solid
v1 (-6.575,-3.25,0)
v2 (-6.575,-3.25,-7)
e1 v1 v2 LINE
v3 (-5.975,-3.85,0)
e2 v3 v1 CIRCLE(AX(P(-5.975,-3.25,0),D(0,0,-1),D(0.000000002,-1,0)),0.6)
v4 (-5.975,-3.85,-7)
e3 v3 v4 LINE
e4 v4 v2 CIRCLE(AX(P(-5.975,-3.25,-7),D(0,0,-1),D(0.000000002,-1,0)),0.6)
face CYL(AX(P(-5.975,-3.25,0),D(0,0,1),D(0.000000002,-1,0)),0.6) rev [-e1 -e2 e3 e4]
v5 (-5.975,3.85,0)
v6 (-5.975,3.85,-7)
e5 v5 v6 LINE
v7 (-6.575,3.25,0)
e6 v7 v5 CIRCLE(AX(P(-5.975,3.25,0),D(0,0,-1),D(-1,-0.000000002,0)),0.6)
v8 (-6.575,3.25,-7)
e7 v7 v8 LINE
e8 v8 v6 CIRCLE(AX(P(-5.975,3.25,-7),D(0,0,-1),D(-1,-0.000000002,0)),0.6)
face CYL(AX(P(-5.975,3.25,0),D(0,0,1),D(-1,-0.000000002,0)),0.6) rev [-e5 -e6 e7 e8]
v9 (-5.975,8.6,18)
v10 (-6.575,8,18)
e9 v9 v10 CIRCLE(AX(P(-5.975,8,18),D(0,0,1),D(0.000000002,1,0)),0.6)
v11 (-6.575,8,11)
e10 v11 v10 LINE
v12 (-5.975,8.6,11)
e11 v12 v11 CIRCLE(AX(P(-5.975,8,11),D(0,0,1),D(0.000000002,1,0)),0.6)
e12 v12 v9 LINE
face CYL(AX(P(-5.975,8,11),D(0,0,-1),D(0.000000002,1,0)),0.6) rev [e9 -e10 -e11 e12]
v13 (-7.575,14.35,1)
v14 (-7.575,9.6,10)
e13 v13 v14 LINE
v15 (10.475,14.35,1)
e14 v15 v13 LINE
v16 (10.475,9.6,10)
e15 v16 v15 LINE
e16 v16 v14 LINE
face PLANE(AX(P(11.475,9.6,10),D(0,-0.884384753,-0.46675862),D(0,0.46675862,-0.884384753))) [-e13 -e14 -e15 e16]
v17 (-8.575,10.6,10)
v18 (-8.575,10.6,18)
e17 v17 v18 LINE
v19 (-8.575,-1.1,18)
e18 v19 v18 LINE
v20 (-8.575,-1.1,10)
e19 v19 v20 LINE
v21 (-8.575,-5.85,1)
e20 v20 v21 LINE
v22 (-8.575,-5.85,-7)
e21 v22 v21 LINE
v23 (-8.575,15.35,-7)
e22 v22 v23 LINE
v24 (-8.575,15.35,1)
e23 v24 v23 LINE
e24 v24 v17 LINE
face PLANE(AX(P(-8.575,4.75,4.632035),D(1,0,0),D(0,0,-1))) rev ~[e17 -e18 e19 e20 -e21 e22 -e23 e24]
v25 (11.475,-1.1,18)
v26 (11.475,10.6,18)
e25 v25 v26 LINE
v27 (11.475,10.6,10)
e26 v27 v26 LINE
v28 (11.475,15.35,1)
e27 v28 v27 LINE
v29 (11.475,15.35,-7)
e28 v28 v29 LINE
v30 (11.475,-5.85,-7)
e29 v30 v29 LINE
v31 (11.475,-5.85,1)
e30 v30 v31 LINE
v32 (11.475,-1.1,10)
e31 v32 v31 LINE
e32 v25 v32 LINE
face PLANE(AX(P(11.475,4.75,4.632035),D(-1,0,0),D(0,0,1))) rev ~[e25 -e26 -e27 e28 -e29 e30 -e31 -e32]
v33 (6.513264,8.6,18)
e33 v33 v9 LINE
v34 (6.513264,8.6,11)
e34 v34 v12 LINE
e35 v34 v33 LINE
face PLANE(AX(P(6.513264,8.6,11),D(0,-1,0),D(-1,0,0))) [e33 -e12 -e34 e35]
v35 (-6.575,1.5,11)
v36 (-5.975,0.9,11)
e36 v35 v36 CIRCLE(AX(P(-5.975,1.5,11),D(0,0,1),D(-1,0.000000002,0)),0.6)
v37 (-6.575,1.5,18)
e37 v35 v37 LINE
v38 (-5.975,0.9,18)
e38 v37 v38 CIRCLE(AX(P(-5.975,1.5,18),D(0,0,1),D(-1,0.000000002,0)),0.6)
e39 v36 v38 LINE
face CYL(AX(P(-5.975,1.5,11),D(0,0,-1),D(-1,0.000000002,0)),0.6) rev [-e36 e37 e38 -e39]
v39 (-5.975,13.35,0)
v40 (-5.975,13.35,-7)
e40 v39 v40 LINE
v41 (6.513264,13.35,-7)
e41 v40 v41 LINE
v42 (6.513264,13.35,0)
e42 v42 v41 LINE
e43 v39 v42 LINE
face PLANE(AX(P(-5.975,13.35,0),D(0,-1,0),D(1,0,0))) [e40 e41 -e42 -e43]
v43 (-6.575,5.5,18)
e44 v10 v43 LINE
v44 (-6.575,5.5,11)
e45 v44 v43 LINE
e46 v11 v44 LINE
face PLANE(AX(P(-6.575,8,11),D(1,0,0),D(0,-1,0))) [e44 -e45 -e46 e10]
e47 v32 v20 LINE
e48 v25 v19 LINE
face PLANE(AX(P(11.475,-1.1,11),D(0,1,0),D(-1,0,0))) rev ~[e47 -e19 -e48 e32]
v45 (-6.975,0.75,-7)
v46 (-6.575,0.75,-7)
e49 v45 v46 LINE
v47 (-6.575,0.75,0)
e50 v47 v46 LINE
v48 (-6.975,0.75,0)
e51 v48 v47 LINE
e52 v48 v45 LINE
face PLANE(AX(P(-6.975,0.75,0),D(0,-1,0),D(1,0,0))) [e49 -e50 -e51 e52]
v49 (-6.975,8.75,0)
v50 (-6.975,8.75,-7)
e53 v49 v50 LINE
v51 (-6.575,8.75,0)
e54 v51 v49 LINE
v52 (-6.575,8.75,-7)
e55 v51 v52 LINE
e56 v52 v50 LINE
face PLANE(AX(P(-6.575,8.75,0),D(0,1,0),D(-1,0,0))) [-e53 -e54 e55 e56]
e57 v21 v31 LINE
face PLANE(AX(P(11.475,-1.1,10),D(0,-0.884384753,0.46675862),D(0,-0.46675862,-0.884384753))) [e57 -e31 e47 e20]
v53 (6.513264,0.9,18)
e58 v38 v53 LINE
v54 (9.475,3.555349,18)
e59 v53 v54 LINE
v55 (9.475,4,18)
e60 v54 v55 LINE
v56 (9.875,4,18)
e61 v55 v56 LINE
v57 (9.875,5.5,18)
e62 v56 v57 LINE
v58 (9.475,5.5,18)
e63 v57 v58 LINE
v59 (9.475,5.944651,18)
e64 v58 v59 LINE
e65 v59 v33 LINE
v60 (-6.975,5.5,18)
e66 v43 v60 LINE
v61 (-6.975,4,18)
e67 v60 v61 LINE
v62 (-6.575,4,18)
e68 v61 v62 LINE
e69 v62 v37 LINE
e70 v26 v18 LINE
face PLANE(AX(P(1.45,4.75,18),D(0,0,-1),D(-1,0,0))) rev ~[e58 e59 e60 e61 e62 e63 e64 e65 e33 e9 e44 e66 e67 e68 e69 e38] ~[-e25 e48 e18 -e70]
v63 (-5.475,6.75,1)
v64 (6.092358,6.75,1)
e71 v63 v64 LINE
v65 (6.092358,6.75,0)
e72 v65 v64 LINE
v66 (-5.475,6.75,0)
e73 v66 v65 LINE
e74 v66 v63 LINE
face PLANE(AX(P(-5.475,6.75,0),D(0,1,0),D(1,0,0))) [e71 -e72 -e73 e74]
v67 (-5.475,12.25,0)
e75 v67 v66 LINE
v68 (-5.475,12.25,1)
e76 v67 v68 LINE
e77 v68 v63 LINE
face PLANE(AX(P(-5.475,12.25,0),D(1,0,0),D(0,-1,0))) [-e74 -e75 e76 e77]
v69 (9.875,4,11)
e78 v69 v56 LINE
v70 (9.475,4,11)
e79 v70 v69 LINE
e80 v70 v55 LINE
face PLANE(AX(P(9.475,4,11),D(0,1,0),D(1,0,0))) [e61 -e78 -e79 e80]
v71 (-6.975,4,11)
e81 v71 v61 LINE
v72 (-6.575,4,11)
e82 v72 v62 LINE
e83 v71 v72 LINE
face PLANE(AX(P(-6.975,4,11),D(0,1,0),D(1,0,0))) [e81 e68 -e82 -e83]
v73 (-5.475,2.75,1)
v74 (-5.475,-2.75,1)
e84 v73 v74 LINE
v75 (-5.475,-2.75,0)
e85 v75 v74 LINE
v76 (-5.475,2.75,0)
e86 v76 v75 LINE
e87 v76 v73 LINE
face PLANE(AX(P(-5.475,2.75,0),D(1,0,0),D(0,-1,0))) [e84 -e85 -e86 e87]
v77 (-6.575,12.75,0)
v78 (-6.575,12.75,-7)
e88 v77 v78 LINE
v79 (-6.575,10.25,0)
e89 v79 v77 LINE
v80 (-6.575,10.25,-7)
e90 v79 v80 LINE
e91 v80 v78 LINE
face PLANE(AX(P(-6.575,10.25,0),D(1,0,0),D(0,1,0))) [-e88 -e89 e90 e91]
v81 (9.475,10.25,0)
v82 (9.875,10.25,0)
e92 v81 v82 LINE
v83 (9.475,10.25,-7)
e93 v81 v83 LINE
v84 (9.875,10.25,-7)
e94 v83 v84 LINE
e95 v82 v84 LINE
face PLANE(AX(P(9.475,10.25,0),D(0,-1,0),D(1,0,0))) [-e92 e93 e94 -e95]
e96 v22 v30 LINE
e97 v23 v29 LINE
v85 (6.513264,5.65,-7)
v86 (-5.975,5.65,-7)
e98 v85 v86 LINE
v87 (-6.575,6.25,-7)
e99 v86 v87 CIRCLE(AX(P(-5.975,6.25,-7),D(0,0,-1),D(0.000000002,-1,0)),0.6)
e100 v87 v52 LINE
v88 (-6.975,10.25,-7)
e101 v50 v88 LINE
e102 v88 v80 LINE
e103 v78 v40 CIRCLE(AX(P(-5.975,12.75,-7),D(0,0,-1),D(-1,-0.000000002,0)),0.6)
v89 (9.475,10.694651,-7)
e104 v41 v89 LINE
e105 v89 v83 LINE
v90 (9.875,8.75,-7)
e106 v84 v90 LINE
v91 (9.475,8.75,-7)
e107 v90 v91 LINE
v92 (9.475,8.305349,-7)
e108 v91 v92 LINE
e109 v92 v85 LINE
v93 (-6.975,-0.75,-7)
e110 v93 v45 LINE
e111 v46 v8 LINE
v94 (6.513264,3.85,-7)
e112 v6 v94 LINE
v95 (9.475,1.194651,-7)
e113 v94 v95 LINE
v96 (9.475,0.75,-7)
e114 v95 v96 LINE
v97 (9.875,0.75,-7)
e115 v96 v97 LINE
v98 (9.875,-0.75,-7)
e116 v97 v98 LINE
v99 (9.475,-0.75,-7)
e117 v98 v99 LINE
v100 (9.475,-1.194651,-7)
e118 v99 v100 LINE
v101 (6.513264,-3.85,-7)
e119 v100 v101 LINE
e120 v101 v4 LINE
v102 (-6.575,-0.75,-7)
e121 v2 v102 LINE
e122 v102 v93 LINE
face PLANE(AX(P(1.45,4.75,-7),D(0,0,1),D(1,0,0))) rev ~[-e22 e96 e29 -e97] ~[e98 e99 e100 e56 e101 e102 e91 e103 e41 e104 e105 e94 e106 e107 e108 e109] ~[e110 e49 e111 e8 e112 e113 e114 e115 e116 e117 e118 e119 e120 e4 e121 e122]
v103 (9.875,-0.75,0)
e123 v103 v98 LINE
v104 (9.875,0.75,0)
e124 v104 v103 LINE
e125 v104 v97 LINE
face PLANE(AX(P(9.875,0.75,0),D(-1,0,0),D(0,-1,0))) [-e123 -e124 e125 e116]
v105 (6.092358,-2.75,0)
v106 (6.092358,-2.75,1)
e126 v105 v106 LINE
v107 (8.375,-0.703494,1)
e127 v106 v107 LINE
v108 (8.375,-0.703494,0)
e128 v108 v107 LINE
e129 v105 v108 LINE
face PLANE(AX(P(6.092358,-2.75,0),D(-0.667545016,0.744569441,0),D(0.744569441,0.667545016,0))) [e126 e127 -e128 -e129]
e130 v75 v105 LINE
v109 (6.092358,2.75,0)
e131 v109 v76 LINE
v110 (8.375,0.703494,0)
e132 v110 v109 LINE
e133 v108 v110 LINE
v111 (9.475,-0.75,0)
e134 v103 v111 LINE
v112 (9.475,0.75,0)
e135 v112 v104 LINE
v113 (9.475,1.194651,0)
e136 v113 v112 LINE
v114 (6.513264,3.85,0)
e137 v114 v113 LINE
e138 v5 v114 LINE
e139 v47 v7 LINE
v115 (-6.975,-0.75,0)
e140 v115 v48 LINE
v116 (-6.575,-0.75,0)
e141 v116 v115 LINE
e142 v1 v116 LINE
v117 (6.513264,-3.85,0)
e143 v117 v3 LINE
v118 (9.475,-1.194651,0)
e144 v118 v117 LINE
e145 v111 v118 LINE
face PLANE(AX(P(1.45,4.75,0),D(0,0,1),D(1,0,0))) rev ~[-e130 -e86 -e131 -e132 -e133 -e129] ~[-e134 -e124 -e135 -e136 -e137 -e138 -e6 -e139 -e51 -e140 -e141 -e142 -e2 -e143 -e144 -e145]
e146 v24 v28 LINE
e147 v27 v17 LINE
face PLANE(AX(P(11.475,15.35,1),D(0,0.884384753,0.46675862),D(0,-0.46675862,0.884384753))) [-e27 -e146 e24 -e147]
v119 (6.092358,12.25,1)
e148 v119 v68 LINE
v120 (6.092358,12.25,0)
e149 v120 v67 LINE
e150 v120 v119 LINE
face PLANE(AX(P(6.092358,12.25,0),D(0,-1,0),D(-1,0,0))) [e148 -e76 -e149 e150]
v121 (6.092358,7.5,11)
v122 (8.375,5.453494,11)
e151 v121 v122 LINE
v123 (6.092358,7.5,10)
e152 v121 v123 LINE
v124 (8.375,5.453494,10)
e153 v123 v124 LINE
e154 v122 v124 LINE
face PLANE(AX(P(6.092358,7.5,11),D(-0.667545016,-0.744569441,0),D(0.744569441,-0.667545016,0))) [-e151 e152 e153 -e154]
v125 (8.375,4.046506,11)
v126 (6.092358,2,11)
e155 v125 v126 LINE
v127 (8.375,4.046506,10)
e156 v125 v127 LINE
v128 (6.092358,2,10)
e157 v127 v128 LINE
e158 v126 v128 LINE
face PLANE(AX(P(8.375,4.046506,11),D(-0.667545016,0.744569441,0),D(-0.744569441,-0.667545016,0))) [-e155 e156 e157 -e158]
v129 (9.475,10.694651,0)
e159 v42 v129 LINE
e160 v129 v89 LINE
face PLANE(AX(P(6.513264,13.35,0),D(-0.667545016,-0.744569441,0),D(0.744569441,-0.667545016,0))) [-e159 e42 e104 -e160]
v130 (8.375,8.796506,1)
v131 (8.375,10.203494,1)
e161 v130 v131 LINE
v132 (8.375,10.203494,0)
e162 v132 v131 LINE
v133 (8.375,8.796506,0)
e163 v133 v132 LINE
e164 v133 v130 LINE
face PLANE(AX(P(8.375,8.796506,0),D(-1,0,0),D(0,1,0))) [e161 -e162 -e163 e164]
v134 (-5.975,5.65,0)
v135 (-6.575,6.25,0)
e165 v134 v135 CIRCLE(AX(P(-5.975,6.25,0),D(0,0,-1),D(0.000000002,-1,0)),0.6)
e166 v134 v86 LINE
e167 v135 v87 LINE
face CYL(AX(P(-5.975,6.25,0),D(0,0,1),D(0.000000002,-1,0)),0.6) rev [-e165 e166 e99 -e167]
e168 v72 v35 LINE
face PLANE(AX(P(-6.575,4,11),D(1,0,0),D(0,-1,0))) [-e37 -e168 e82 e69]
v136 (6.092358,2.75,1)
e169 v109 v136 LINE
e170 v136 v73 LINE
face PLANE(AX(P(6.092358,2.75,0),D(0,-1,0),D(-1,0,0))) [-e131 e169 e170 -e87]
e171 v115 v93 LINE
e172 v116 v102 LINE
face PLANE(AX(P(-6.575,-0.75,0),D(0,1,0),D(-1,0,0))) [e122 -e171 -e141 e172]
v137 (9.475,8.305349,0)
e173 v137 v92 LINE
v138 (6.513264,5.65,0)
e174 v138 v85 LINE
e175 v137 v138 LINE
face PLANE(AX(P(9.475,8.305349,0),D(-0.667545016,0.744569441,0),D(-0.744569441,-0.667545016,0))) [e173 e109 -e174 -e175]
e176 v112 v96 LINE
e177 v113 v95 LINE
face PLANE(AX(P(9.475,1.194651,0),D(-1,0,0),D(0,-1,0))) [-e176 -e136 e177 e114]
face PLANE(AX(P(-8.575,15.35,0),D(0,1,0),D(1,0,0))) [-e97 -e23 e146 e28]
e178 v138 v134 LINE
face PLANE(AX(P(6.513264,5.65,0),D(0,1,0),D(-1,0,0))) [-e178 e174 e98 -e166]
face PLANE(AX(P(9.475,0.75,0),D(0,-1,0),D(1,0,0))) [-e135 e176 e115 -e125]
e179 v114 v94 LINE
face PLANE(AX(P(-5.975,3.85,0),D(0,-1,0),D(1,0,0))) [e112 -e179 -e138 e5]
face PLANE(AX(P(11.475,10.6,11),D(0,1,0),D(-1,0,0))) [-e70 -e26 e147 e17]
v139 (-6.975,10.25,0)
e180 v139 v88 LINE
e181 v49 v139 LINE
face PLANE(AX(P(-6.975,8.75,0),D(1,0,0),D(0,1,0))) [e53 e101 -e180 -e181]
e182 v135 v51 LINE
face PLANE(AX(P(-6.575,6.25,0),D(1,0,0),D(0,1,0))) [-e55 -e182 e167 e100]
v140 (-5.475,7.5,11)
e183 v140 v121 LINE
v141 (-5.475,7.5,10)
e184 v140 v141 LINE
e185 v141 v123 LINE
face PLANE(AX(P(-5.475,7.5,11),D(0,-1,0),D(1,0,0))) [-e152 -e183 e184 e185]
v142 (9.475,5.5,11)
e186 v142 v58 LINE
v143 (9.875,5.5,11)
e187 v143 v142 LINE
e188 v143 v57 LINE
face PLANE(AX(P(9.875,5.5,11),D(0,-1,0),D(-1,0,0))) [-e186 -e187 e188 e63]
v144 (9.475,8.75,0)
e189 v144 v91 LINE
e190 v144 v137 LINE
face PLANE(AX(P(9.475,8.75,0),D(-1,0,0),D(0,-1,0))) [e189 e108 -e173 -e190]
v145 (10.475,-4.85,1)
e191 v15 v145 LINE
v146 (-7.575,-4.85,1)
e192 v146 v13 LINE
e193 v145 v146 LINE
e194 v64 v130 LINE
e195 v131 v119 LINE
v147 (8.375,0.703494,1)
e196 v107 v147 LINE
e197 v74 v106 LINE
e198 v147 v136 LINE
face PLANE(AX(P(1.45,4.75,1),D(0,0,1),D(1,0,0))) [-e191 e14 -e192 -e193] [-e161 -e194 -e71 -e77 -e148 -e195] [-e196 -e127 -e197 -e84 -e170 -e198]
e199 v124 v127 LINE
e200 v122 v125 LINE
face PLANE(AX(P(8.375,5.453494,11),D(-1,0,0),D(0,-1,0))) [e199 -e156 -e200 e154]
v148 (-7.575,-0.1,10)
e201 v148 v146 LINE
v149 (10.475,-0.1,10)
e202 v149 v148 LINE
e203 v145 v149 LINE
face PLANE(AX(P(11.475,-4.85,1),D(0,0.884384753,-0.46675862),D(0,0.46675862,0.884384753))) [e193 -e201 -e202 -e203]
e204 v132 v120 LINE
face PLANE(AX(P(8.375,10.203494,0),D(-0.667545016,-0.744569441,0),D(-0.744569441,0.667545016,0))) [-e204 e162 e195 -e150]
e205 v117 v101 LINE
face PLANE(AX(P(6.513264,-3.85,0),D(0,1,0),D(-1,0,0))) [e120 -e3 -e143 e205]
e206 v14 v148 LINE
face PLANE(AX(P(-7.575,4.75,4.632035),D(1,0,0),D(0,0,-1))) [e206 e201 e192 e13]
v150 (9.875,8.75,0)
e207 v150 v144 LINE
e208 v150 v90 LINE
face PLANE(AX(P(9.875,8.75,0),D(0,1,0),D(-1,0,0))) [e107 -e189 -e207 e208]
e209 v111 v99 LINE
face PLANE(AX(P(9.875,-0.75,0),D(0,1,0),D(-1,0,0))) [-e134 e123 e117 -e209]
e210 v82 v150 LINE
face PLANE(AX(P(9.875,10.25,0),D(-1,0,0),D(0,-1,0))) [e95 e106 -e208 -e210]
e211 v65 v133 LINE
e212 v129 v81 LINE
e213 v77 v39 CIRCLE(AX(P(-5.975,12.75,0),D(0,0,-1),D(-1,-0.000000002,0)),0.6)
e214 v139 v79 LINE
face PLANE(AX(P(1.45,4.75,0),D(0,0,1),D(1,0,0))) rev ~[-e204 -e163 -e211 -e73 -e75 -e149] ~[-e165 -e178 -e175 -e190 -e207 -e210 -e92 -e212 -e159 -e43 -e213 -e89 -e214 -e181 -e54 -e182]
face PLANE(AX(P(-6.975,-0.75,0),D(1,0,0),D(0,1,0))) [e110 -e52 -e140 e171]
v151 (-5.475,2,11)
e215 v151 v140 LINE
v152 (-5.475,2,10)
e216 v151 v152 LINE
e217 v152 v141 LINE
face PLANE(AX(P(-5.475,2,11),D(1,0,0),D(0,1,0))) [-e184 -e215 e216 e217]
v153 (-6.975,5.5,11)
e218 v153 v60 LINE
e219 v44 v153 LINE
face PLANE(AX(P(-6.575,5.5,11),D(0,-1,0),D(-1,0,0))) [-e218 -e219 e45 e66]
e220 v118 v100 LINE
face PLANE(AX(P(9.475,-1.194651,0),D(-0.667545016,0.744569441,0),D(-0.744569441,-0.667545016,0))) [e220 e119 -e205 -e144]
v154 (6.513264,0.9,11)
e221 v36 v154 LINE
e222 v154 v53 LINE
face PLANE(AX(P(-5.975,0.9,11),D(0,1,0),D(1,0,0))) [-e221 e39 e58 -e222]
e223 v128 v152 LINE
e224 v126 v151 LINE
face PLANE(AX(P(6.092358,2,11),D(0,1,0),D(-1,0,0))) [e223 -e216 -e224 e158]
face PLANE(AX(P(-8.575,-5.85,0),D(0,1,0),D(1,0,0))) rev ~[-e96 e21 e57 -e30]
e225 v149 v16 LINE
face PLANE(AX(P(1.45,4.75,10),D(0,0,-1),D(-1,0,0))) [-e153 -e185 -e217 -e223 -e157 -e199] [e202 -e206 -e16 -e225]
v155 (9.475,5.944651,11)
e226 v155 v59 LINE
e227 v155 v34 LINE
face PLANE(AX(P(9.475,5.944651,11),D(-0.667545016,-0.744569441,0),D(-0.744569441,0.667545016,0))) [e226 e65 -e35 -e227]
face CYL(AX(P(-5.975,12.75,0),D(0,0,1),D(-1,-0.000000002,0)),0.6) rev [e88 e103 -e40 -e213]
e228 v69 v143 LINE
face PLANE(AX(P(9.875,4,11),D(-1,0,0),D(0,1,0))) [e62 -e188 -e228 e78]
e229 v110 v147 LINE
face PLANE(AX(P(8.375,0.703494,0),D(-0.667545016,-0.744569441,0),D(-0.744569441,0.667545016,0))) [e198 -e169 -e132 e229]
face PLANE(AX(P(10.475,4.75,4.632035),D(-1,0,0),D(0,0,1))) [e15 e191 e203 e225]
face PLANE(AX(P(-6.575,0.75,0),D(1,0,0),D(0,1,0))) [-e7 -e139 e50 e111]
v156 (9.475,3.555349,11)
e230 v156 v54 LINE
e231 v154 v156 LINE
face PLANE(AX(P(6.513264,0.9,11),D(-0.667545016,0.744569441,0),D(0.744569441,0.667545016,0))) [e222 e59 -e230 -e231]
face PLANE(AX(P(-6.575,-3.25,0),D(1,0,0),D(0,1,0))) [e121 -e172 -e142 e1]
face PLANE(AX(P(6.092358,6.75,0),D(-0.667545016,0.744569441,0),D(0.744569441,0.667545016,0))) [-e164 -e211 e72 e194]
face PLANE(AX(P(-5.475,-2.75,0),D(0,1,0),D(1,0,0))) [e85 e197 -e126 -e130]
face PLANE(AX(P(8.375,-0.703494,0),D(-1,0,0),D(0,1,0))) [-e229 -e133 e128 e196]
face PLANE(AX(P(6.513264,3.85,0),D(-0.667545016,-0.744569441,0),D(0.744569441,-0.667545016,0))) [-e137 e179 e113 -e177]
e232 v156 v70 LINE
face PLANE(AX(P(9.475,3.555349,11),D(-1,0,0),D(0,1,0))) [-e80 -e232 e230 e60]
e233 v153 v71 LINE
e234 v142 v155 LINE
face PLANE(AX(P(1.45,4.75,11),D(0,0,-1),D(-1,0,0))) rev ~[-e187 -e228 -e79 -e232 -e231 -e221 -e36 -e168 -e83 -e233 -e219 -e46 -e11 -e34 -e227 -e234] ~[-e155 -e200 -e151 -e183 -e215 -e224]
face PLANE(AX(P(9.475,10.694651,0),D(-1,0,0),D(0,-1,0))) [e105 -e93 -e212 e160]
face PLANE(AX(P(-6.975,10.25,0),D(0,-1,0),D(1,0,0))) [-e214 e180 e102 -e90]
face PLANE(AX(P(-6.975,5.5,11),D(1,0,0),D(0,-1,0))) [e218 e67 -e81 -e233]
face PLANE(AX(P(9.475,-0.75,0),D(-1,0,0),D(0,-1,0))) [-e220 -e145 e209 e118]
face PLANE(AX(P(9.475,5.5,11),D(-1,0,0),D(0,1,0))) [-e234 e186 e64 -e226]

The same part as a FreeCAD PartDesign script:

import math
import FreeCAD as App
import Part
import Sketcher
Q = App.Units.Quantity


def add_polygon(sketch, points):
    """Adds a closed chain of lines whose ends are joined by coincident constraints."""
    first, n = sketch.GeometryCount, len(points)
    for a, b in zip(points, points[1:] + points[:1]):
        sketch.addGeometry(Part.LineSegment(App.Vector(*a, 0), App.Vector(*b, 0)), False)
    for i in range(n):
        sketch.addConstraint(Sketcher.Constraint("Coincident", first + i, 2, first + (i + 1) % n, 1))

doc = App.newDocument("Part")
body = doc.addObject("PartDesign::Body", "Body")

# Sketch on XY plane
sketch1 = doc.addObject("Sketcher::SketchObject", "Sketch")
body.addObject(sketch1)
sketch1.AttachmentSupport = (doc.XY_Plane, [""])
sketch1.MapMode = "FlatFace"
add_polygon(sketch1, [(-8.57, 15.35), (-8.57, -5.85), (11.47, -5.85), (11.47, 15.35)])  # lines 0-3
sketch1.addGeometry(Part.ArcOfCircle(Part.Circle(App.Vector(-5.98, 3.25, 0), App.Vector(0, 0, 1), 0.6), math.radians(90), math.radians(180)), False)  # 4
sketch1.addGeometry(Part.LineSegment(App.Vector(-5.97, 3.85, 0), App.Vector(6.51, 3.85, 0)), False)  # 5
sketch1.addGeometry(Part.LineSegment(App.Vector(6.51, 3.85, 0), App.Vector(9.47, 1.19, 0)), False)  # 6
sketch1.addGeometry(Part.LineSegment(App.Vector(9.47, 1.19, 0), App.Vector(9.47, 0.75, 0)), False)  # 7
sketch1.addGeometry(Part.LineSegment(App.Vector(9.47, 0.75, 0), App.Vector(9.88, 0.75, 0)), False)  # 8
sketch1.addGeometry(Part.LineSegment(App.Vector(9.88, 0.75, 0), App.Vector(9.88, -0.75, 0)), False)  # 9
sketch1.addGeometry(Part.LineSegment(App.Vector(9.88, -0.75, 0), App.Vector(9.47, -0.75, 0)), False)  # 10
sketch1.addGeometry(Part.LineSegment(App.Vector(9.47, -0.75, 0), App.Vector(9.47, -1.19, 0)), False)  # 11
sketch1.addGeometry(Part.LineSegment(App.Vector(9.47, -1.19, 0), App.Vector(6.51, -3.85, 0)), False)  # 12
sketch1.addGeometry(Part.LineSegment(App.Vector(6.51, -3.85, 0), App.Vector(-5.97, -3.85, 0)), False)  # 13
sketch1.addGeometry(Part.ArcOfCircle(Part.Circle(App.Vector(-5.98, -3.25, 0), App.Vector(0, 0, 1), 0.6), math.radians(180), math.radians(270)), False)  # 14
sketch1.addGeometry(Part.LineSegment(App.Vector(-6.58, -3.25, 0), App.Vector(-6.58, -0.75, 0)), False)  # 15
sketch1.addGeometry(Part.LineSegment(App.Vector(-6.58, -0.75, 0), App.Vector(-6.97, -0.75, 0)), False)  # 16
sketch1.addGeometry(Part.LineSegment(App.Vector(-6.97, -0.75, 0), App.Vector(-6.97, 0.75, 0)), False)  # 17
sketch1.addGeometry(Part.LineSegment(App.Vector(-6.97, 0.75, 0), App.Vector(-6.58, 0.75, 0)), False)  # 18
sketch1.addGeometry(Part.LineSegment(App.Vector(-6.58, 0.75, 0), App.Vector(-6.58, 3.25, 0)), False)  # 19
sketch1.addGeometry(Part.ArcOfCircle(Part.Circle(App.Vector(-5.98, 12.75, 0), App.Vector(0, 0, 1), 0.6), math.radians(90), math.radians(180)), False)  # 20
sketch1.addGeometry(Part.LineSegment(App.Vector(-5.97, 13.35, 0), App.Vector(6.51, 13.35, 0)), False)  # 21
sketch1.addGeometry(Part.LineSegment(App.Vector(6.51, 13.35, 0), App.Vector(9.47, 10.69, 0)), False)  # 22
sketch1.addGeometry(Part.LineSegment(App.Vector(9.47, 10.69, 0), App.Vector(9.47, 10.25, 0)), False)  # 23
sketch1.addGeometry(Part.LineSegment(App.Vector(9.47, 10.25, 0), App.Vector(9.88, 10.25, 0)), False)  # 24
sketch1.addGeometry(Part.LineSegment(App.Vector(9.88, 10.25, 0), App.Vector(9.88, 8.75, 0)), False)  # 25
sketch1.addGeometry(Part.LineSegment(App.Vector(9.88, 8.75, 0), App.Vector(9.47, 8.75, 0)), False)  # 26
sketch1.addGeometry(Part.LineSegment(App.Vector(9.47, 8.75, 0), App.Vector(9.47, 8.31, 0)), False)  # 27
sketch1.addGeometry(Part.LineSegment(App.Vector(9.47, 8.31, 0), App.Vector(6.51, 5.65, 0)), False)  # 28
sketch1.addGeometry(Part.LineSegment(App.Vector(6.51, 5.65, 0), App.Vector(-5.97, 5.65, 0)), False)  # 29
sketch1.addGeometry(Part.ArcOfCircle(Part.Circle(App.Vector(-5.98, 6.25, 0), App.Vector(0, 0, 1), 0.6), math.radians(180), math.radians(270)), False)  # 30
sketch1.addGeometry(Part.LineSegment(App.Vector(-6.58, 6.25, 0), App.Vector(-6.58, 8.75, 0)), False)  # 31
sketch1.addGeometry(Part.LineSegment(App.Vector(-6.58, 8.75, 0), App.Vector(-6.97, 8.75, 0)), False)  # 32
sketch1.addGeometry(Part.LineSegment(App.Vector(-6.97, 8.75, 0), App.Vector(-6.97, 10.25, 0)), False)  # 33
sketch1.addGeometry(Part.LineSegment(App.Vector(-6.97, 10.25, 0), App.Vector(-6.58, 10.25, 0)), False)  # 34
sketch1.addGeometry(Part.LineSegment(App.Vector(-6.58, 10.25, 0), App.Vector(-6.58, 12.75, 0)), False)  # 35
sketch1.addConstraint([
    Sketcher.Constraint("Tangent", 4, 1, 5, 1),
    Sketcher.Constraint("Coincident", 5, 2, 6, 1),
    Sketcher.Constraint("Coincident", 6, 2, 7, 1),
    Sketcher.Constraint("Coincident", 7, 2, 8, 1),
    Sketcher.Constraint("Coincident", 8, 2, 9, 1),
    Sketcher.Constraint("Coincident", 9, 2, 10, 1),
    Sketcher.Constraint("Coincident", 10, 2, 11, 1),
    Sketcher.Constraint("Coincident", 11, 2, 12, 1),
    Sketcher.Constraint("Coincident", 12, 2, 13, 1),
    Sketcher.Constraint("Tangent", 13, 2, 14, 2),
    Sketcher.Constraint("Tangent", 14, 1, 15, 1),
    Sketcher.Constraint("Coincident", 15, 2, 16, 1),
    Sketcher.Constraint("Coincident", 16, 2, 17, 1),
    Sketcher.Constraint("Coincident", 17, 2, 18, 1),
    Sketcher.Constraint("Coincident", 18, 2, 19, 1),
    Sketcher.Constraint("Tangent", 19, 2, 4, 2),
    Sketcher.Constraint("Tangent", 20, 1, 21, 1),
    Sketcher.Constraint("Coincident", 21, 2, 22, 1),
    Sketcher.Constraint("Coincident", 22, 2, 23, 1),
    Sketcher.Constraint("Coincident", 23, 2, 24, 1),
    Sketcher.Constraint("Coincident", 24, 2, 25, 1),
    Sketcher.Constraint("Coincident", 25, 2, 26, 1),
    Sketcher.Constraint("Coincident", 26, 2, 27, 1),
    Sketcher.Constraint("Coincident", 27, 2, 28, 1),
    Sketcher.Constraint("Coincident", 28, 2, 29, 1),
    Sketcher.Constraint("Tangent", 29, 2, 30, 2),
    Sketcher.Constraint("Tangent", 30, 1, 31, 1),
    Sketcher.Constraint("Coincident", 31, 2, 32, 1),
    Sketcher.Constraint("Coincident", 32, 2, 33, 1),
    Sketcher.Constraint("Coincident", 33, 2, 34, 1),
    Sketcher.Constraint("Coincident", 34, 2, 35, 1),
    Sketcher.Constraint("Tangent", 35, 2, 20, 2),
    Sketcher.Constraint("Vertical", 0),
    Sketcher.Constraint("Horizontal", 1),
    Sketcher.Constraint("Vertical", 2),
    Sketcher.Constraint("Horizontal", 3),
    Sketcher.Constraint("Horizontal", 5),
    Sketcher.Constraint("Vertical", 7),
    Sketcher.Constraint("Horizontal", 8),
    Sketcher.Constraint("Vertical", 9),
    Sketcher.Constraint("Horizontal", 10),
    Sketcher.Constraint("Vertical", 11),
    Sketcher.Constraint("Horizontal", 13),
    Sketcher.Constraint("Vertical", 15),
    Sketcher.Constraint("Horizontal", 16),
    Sketcher.Constraint("Vertical", 17),
    Sketcher.Constraint("Horizontal", 18),
    Sketcher.Constraint("Vertical", 19),
    Sketcher.Constraint("Horizontal", 21),
    Sketcher.Constraint("Vertical", 23),
    Sketcher.Constraint("Horizontal", 24),
    Sketcher.Constraint("Vertical", 25),
    Sketcher.Constraint("Horizontal", 26),
    Sketcher.Constraint("Vertical", 27),
    Sketcher.Constraint("Horizontal", 29),
    Sketcher.Constraint("Vertical", 31),
    Sketcher.Constraint("Horizontal", 32),
    Sketcher.Constraint("Vertical", 33),
    Sketcher.Constraint("Horizontal", 34),
    Sketcher.Constraint("Vertical", 35),
    Sketcher.Constraint("Equal", 4, 14),
    Sketcher.Constraint("Equal", 14, 20),
    Sketcher.Constraint("Equal", 20, 30),
    Sketcher.Constraint("Symmetric", 4, 3, 14, 3, -1),
    Sketcher.Constraint("Symmetric", 7, 2, 10, 2, -1),
    Sketcher.Constraint("Parallel", 6, 22),
    Sketcher.Constraint("Parallel", 12, 28),
    Sketcher.Constraint("Horizontal", 10, 2, 15, 2),
    Sketcher.Constraint("Horizontal", 8, 2, 17, 2),
    Sketcher.Constraint("Horizontal", 26, 2, 31, 2),
    Sketcher.Constraint("Horizontal", 24, 2, 33, 2),
    Sketcher.Constraint("Vertical", 14, 3, 20, 3),
    Sketcher.Constraint("Vertical", 20, 3, 30, 3),
    Sketcher.Constraint("Vertical", 5, 2, 12, 2),
    Sketcher.Constraint("Vertical", 12, 2, 21, 2),
    Sketcher.Constraint("Vertical", 11, 2, 22, 2),
    Sketcher.Constraint("Vertical", 9, 2, 24, 2),
    Sketcher.Constraint("Vertical", 23, 2, 26, 2),
    Sketcher.Constraint("Vertical", 21, 2, 28, 2),
    Sketcher.Constraint("Vertical", 17, 2, 32, 2),
    Sketcher.Constraint("Equal", 10, 16),
    Sketcher.Constraint("Equal", 7, 11),
    Sketcher.Constraint("Equal", 11, 23),
    Sketcher.Constraint("Equal", 17, 25),
    Sketcher.Constraint("Equal", 23, 27),
    Sketcher.Constraint("Radius", 4, Q("0.6 mm")),
    Sketcher.Constraint("DistanceX", 8, 1, 8, 2, Q("0.4 mm")),
    Sketcher.Constraint("DistanceY", 0, 2, 0, 1, Q("21.2 mm")),
    Sketcher.Constraint("DistanceY", 9, 2, 9, 1, Q("1.5 mm")),
    Sketcher.Constraint("DistanceY", 15, 1, 15, 2, Q("2.5 mm")),
    Sketcher.Constraint("DistanceY", 14, 3, 20, 3, Q("16 mm")),
    Sketcher.Constraint("DistanceX", 6, 2, 1, 2, Q("2 mm")),
    Sketcher.Constraint("DistanceY", 1, 2, 12, 2, Q("2 mm")),
    Sketcher.Constraint("DistanceX", 0, 2, 14, 1, Q("2 mm")),
    Sketcher.Constraint("DistanceX", 1, 1, 1, 2, Q("20.05 mm")),
    Sketcher.Constraint("DistanceX", 4, 3, -1, 1, Q("5.975 mm")),
    Sketcher.Constraint("DistanceY", 7, 2, 7, 1, Q("0.444651 mm")),
    Sketcher.Constraint("DistanceX", 5, 1, 5, 2, Q("12.488264 mm")),
])
pad1 = doc.addObject("PartDesign::Pad", "Pad")
body.addObject(pad1)
pad1.Profile = sketch1
pad1.Length = 7
pad1.Reversed = True

# Sketch on XY plane
sketch2 = doc.addObject("Sketcher::SketchObject", "Sketch001")
body.addObject(sketch2)
sketch2.AttachmentSupport = (doc.XY_Plane, [""])
sketch2.MapMode = "FlatFace"
add_polygon(sketch2, [(-8.6, 15.3), (-8.6, -5.8), (11.5, -5.8), (11.5, 15.3)])  # lines 0-3
add_polygon(sketch2, [(-5.5, 2.8), (6.1, 2.8), (8.4, 0.7), (8.4, -0.7), (6.1, -2.8), (-5.5, -2.8)])  # lines 4-9
add_polygon(sketch2, [(-5.5, 12.2), (6.1, 12.2), (8.4, 10.2), (8.4, 8.8), (6.1, 6.8), (-5.5, 6.8)])  # lines 10-15
sketch2.addConstraint([
    Sketcher.Constraint("Vertical", 0),
    Sketcher.Constraint("Horizontal", 1),
    Sketcher.Constraint("Vertical", 2),
    Sketcher.Constraint("Horizontal", 3),
    Sketcher.Constraint("Horizontal", 4),
    Sketcher.Constraint("Vertical", 6),
    Sketcher.Constraint("Horizontal", 8),
    Sketcher.Constraint("Vertical", 9),
    Sketcher.Constraint("Horizontal", 10),
    Sketcher.Constraint("Vertical", 12),
    Sketcher.Constraint("Horizontal", 14),
    Sketcher.Constraint("Vertical", 15),
    Sketcher.Constraint("Symmetric", 4, 2, 7, 2, -1),
    Sketcher.Constraint("Parallel", 5, 11),
    Sketcher.Constraint("Parallel", 7, 13),
    Sketcher.Constraint("Vertical", 7, 2, 10, 2),
    Sketcher.Constraint("Vertical", 6, 2, 11, 2),
    Sketcher.Constraint("Vertical", 10, 2, 13, 2),
    Sketcher.Constraint("Vertical", 9, 2, 14, 2),
    Sketcher.Constraint("Equal", 6, 12),
    Sketcher.Constraint("Equal", 5, 7),
    Sketcher.Constraint("DistanceY", 0, 2, 0, 1, Q("21.2 mm")),
    Sketcher.Constraint("DistanceY", 9, 1, 9, 2, Q("5.5 mm")),
    Sketcher.Constraint("DistanceY", 4, 2, 13, 2, Q("4 mm")),
    Sketcher.Constraint("DistanceX", 1, 1, 1, 2, Q("20.05 mm")),
    Sketcher.Constraint("DistanceY", 1, 2, 4, 2, Q("8.6 mm")),
    Sketcher.Constraint("DistanceX", 5, 2, 1, 2, Q("3.1 mm")),
    Sketcher.Constraint("DistanceX", 0, 2, 8, 2, Q("3.1 mm")),
    Sketcher.Constraint("DistanceX", 0, 2, -1, 1, Q("8.575 mm")),
    Sketcher.Constraint("DistanceX", 4, 1, 4, 2, Q("11.567358 mm")),
    Sketcher.Constraint("Distance", 5, Q("3.06572 mm")),
])
pad2 = doc.addObject("PartDesign::Pad", "Pad001")
body.addObject(pad2)
pad2.Profile = sketch2
pad2.Length = 1
body2 = doc.addObject("PartDesign::Body", "Body001")

# Sketch on XY plane
sketch3 = doc.addObject("Sketcher::SketchObject", "Sketch002")
body2.addObject(sketch3)
sketch3.AttachmentSupport = (doc.getObject("XY_Plane001"), [""])
sketch3.MapMode = "FlatFace"
sketch3.AttachmentOffset = App.Placement(App.Vector(0, 0, 11), App.Rotation())
add_polygon(sketch3, [(11.47, 10.6), (11.47, -1.1), (-8.57, -1.1), (-8.57, 10.6)])  # lines 0-3
sketch3.addGeometry(Part.LineSegment(App.Vector(-6.97, 5.5, 0), App.Vector(-6.97, 4, 0)), False)  # 4
sketch3.addGeometry(Part.LineSegment(App.Vector(-6.97, 4, 0), App.Vector(-6.58, 4, 0)), False)  # 5
sketch3.addGeometry(Part.LineSegment(App.Vector(-6.58, 4, 0), App.Vector(-6.58, 1.5, 0)), False)  # 6
sketch3.addGeometry(Part.ArcOfCircle(Part.Circle(App.Vector(-5.98, 1.5, 0), App.Vector(0, 0, 1), 0.6), math.radians(180), math.radians(270)), False)  # 7
sketch3.addGeometry(Part.LineSegment(App.Vector(-5.97, 0.9, 0), App.Vector(6.51, 0.9, 0)), False)  # 8
sketch3.addGeometry(Part.LineSegment(App.Vector(6.51, 0.9, 0), App.Vector(9.47, 3.56, 0)), False)  # 9
sketch3.addGeometry(Part.LineSegment(App.Vector(9.47, 3.56, 0), App.Vector(9.47, 4, 0)), False)  # 10
sketch3.addGeometry(Part.LineSegment(App.Vector(9.47, 4, 0), App.Vector(9.88, 4, 0)), False)  # 11
sketch3.addGeometry(Part.LineSegment(App.Vector(9.88, 4, 0), App.Vector(9.88, 5.5, 0)), False)  # 12
sketch3.addGeometry(Part.LineSegment(App.Vector(9.88, 5.5, 0), App.Vector(9.47, 5.5, 0)), False)  # 13
sketch3.addGeometry(Part.LineSegment(App.Vector(9.47, 5.5, 0), App.Vector(9.47, 5.94, 0)), False)  # 14
sketch3.addGeometry(Part.LineSegment(App.Vector(9.47, 5.94, 0), App.Vector(6.51, 8.6, 0)), False)  # 15
sketch3.addGeometry(Part.LineSegment(App.Vector(6.51, 8.6, 0), App.Vector(-5.97, 8.6, 0)), False)  # 16
sketch3.addGeometry(Part.ArcOfCircle(Part.Circle(App.Vector(-5.98, 8, 0), App.Vector(0, 0, 1), 0.6), math.radians(90), math.radians(180)), False)  # 17
sketch3.addGeometry(Part.LineSegment(App.Vector(-6.58, 8, 0), App.Vector(-6.58, 5.5, 0)), False)  # 18
sketch3.addGeometry(Part.LineSegment(App.Vector(-6.58, 5.5, 0), App.Vector(-6.97, 5.5, 0)), False)  # 19
sketch3.addConstraint([
    Sketcher.Constraint("Coincident", 4, 2, 5, 1),
    Sketcher.Constraint("Coincident", 5, 2, 6, 1),
    Sketcher.Constraint("Tangent", 6, 2, 7, 1),
    Sketcher.Constraint("Tangent", 7, 2, 8, 1),
    Sketcher.Constraint("Coincident", 8, 2, 9, 1),
    Sketcher.Constraint("Coincident", 9, 2, 10, 1),
    Sketcher.Constraint("Coincident", 10, 2, 11, 1),
    Sketcher.Constraint("Coincident", 11, 2, 12, 1),
    Sketcher.Constraint("Coincident", 12, 2, 13, 1),
    Sketcher.Constraint("Coincident", 13, 2, 14, 1),
    Sketcher.Constraint("Coincident", 14, 2, 15, 1),
    Sketcher.Constraint("Coincident", 15, 2, 16, 1),
    Sketcher.Constraint("Tangent", 16, 2, 17, 1),
    Sketcher.Constraint("Tangent", 17, 2, 18, 1),
    Sketcher.Constraint("Coincident", 18, 2, 19, 1),
    Sketcher.Constraint("Coincident", 19, 2, 4, 1),
    Sketcher.Constraint("Vertical", 0),
    Sketcher.Constraint("Horizontal", 1),
    Sketcher.Constraint("Vertical", 2),
    Sketcher.Constraint("Horizontal", 3),
    Sketcher.Constraint("Vertical", 4),
    Sketcher.Constraint("Horizontal", 5),
    Sketcher.Constraint("Vertical", 6),
    Sketcher.Constraint("Horizontal", 8),
    Sketcher.Constraint("Vertical", 10),
    Sketcher.Constraint("Horizontal", 11),
    Sketcher.Constraint("Vertical", 12),
    Sketcher.Constraint("Horizontal", 13),
    Sketcher.Constraint("Vertical", 14),
    Sketcher.Constraint("Horizontal", 16),
    Sketcher.Constraint("Vertical", 18),
    Sketcher.Constraint("Horizontal", 19),
    Sketcher.Constraint("Equal", 7, 17),
    Sketcher.Constraint("Horizontal", 5, 2, 10, 2),
    Sketcher.Constraint("Horizontal", 13, 2, 18, 2),
    Sketcher.Constraint("Vertical", 7, 3, 17, 3),
    Sketcher.Constraint("Vertical", 10, 2, 13, 2),
    Sketcher.Constraint("Vertical", 8, 2, 15, 2),
    Sketcher.Constraint("Equal", 5, 11),
    Sketcher.Constraint("Equal", 10, 14),
    Sketcher.Constraint("Equal", 6, 18),
    Sketcher.Constraint("Radius", 7, Q("0.6 mm")),
    Sketcher.Constraint("DistanceX", 5, 1, 5, 2, Q("0.4 mm")),
    Sketcher.Constraint("DistanceY", 0, 2, 0, 1, Q("11.7 mm")),
    Sketcher.Constraint("DistanceY", 4, 2, 4, 1, Q("1.5 mm")),
    Sketcher.Constraint("DistanceY", 6, 2, 6, 1, Q("2.5 mm")),
    Sketcher.Constraint("DistanceY", -1, 1, 17, 3, Q("8 mm")),
    Sketcher.Constraint("DistanceX", 1, 2, 5, 2, Q("2 mm")),
    Sketcher.Constraint("DistanceY", 1, 2, 7, 2, Q("2 mm")),
    Sketcher.Constraint("DistanceX", 9, 2, 0, 2, Q("2 mm")),
    Sketcher.Constraint("DistanceX", 1, 2, 1, 1, Q("20.05 mm")),
    Sketcher.Constraint("DistanceX", 7, 3, -1, 1, Q("5.975 mm")),
    Sketcher.Constraint("DistanceY", 10, 1, 10, 2, Q("0.444651 mm")),
    Sketcher.Constraint("DistanceX", 8, 1, 8, 2, Q("12.488264 mm")),
])
pad3 = doc.addObject("PartDesign::Pad", "Pad002")
body2.addObject(pad3)
pad3.Profile = sketch3
pad3.Length = 7

# Sketch on XY plane
sketch4 = doc.addObject("Sketcher::SketchObject", "Sketch003")
body2.addObject(sketch4)
sketch4.AttachmentSupport = (doc.getObject("XY_Plane001"), [""])
sketch4.MapMode = "FlatFace"
sketch4.AttachmentOffset = App.Placement(App.Vector(0, 0, 11), App.Rotation())
add_polygon(sketch4, [(11.5, 10.6), (11.5, -1.1), (-8.6, -1.1), (-8.6, 10.6)])  # lines 0-3
add_polygon(sketch4, [(-5.5, 2), (6.1, 2), (8.4, 4), (8.4, 5.5), (6.1, 7.5), (-5.5, 7.5)])  # lines 4-9
sketch4.addConstraint([
    Sketcher.Constraint("Vertical", 0),
    Sketcher.Constraint("Horizontal", 1),
    Sketcher.Constraint("Vertical", 2),
    Sketcher.Constraint("Horizontal", 3),
    Sketcher.Constraint("Horizontal", 4),
    Sketcher.Constraint("Vertical", 6),
    Sketcher.Constraint("Horizontal", 8),
    Sketcher.Constraint("Vertical", 9),
    Sketcher.Constraint("Vertical", 4, 2, 7, 2),
    Sketcher.Constraint("Equal", 5, 7),
    Sketcher.Constraint("DistanceY", 0, 2, 0, 1, Q("11.7 mm")),
    Sketcher.Constraint("DistanceY", 9, 2, 9, 1, Q("5.5 mm")),
    Sketcher.Constraint("DistanceY", -1, 1, 4, 2, Q("2 mm")),
    Sketcher.Constraint("DistanceX", 1, 2, 1, 1, Q("20.05 mm")),
    Sketcher.Constraint("DistanceY", 0, 2, -1, 1, Q("1.1 mm")),
    Sketcher.Constraint("DistanceX", 5, 2, 0, 2, Q("3.1 mm")),
    Sketcher.Constraint("DistanceX", 2, 2, 8, 2, Q("3.1 mm")),
    Sketcher.Constraint("DistanceX", -1, 1, 0, 2, Q("11.475 mm")),
    Sketcher.Constraint("DistanceX", 4, 1, 4, 2, Q("11.567358 mm")),
    Sketcher.Constraint("Distance", 5, Q("3.06572 mm")),
])
pad4 = doc.addObject("PartDesign::Pad", "Pad003")
body2.addObject(pad4)
pad4.Profile = sketch4
pad4.Length = 1
pad4.Reversed = True
body.AllowCompound = True
doc.recompute()

boolean = doc.addObject("PartDesign::Boolean", "Boolean")
body.addObject(boolean)
boolean.Type = "Fuse"
boolean.addObjects([body2])

# Sketch on YZ plane
sketch5 = doc.addObject("Sketcher::SketchObject", "Sketch004")
body.addObject(sketch5)
sketch5.AttachmentSupport = (doc.YZ_Plane, [""])
sketch5.MapMode = "FlatFace"
sketch5.AttachmentOffset = App.Placement(App.Vector(0, 0, 11.475), App.Rotation())
add_polygon(sketch5, [(-1.1, 10), (-5.8, 1), (-4.8, 1), (-0.1, 10)])  # lines 0-3
add_polygon(sketch5, [(9.6, 10), (14.3, 1), (15.3, 1), (10.6, 10)])  # lines 4-7
sketch5.addConstraint([
    Sketcher.Constraint("Horizontal", 1),
    Sketcher.Constraint("Horizontal", 3),
    Sketcher.Constraint("Horizontal", 5),
    Sketcher.Constraint("Horizontal", 7),
    Sketcher.Constraint("Parallel", 0, 2),
    Sketcher.Constraint("Parallel", 4, 6),
    Sketcher.Constraint("Horizontal", 1, 2, 4, 2),
    Sketcher.Constraint("Horizontal", 3, 2, 6, 2),
    Sketcher.Constraint("Equal", 3, 5),
    Sketcher.Constraint("Equal", 2, 4),
    Sketcher.Constraint("DistanceX", 1, 1, 1, 2, Q("1 mm")),
    Sketcher.Constraint("DistanceY", -1, 1, 0, 2, Q("1 mm")),
    Sketcher.Constraint("DistanceY", -1, 1, 2, 2, Q("10 mm")),
    Sketcher.Constraint("DistanceX", 2, 2, -1, 1, Q("0.1 mm")),
    Sketcher.Constraint("DistanceX", -1, 1, 6, 2, Q("10.6 mm")),
    Sketcher.Constraint("DistanceX", 1, 2, 4, 2, Q("19.2 mm")),
])
pad5 = doc.addObject("PartDesign::Pad", "Pad004")
body.addObject(pad5)
pad5.Profile = sketch5
pad5.Length = 20.05
pad5.Reversed = True

# Sketch on YZ plane
sketch6 = doc.addObject("Sketcher::SketchObject", "Sketch005")
body.addObject(sketch6)
sketch6.AttachmentSupport = (doc.YZ_Plane, [""])
sketch6.MapMode = "FlatFace"
sketch6.AttachmentOffset = App.Placement(App.Vector(0, 0, 11.475), App.Rotation())
add_polygon(sketch6, [(14, 1), (10, 10), (0, 10), (-5, 1)])  # lines 0-3
sketch6.addConstraint([
    Sketcher.Constraint("Horizontal", 1),
    Sketcher.Constraint("Horizontal", 3),
    Sketcher.Constraint("Equal", 0, 2),
    Sketcher.Constraint("DistanceX", 1, 2, 1, 1, Q("9.7 mm")),
    Sketcher.Constraint("DistanceX", 3, 1, 3, 2, Q("19.2 mm")),
    Sketcher.Constraint("DistanceY", -1, 1, 0, 2, Q("10 mm")),
    Sketcher.Constraint("DistanceY", -1, 1, 2, 2, Q("1 mm")),
    Sketcher.Constraint("DistanceX", -1, 1, 0, 2, Q("9.6 mm")),
])
pad6 = doc.addObject("PartDesign::Pad", "Pad005")
body.addObject(pad6)
pad6.Profile = sketch6
pad6.Length = 1
pad6.Reversed = True

# Sketch on YZ plane
sketch7 = doc.addObject("Sketcher::SketchObject", "Sketch006")
body.addObject(sketch7)
sketch7.AttachmentSupport = (doc.YZ_Plane, [""])
sketch7.MapMode = "FlatFace"
sketch7.AttachmentOffset = App.Placement(App.Vector(0, 0, -8.575), App.Rotation())
add_polygon(sketch7, [(14, 1), (-5, 1), (0, 10), (10, 10)])  # lines 0-3
sketch7.addConstraint([
    Sketcher.Constraint("Horizontal", 0),
    Sketcher.Constraint("Horizontal", 2),
    Sketcher.Constraint("Equal", 1, 3),
    Sketcher.Constraint("DistanceX", 0, 2, 0, 1, Q("19.2 mm")),
    Sketcher.Constraint("DistanceX", 2, 1, 2, 2, Q("9.7 mm")),
    Sketcher.Constraint("DistanceY", -1, 1, 0, 2, Q("1 mm")),
    Sketcher.Constraint("DistanceY", -1, 1, 1, 2, Q("10 mm")),
    Sketcher.Constraint("DistanceX", 1, 2, -1, 1, Q("0.1 mm")),
])
pad7 = doc.addObject("PartDesign::Pad", "Pad006")
body.addObject(pad7)
pad7.Profile = sketch7
pad7.Length = 1

doc.recompute()
